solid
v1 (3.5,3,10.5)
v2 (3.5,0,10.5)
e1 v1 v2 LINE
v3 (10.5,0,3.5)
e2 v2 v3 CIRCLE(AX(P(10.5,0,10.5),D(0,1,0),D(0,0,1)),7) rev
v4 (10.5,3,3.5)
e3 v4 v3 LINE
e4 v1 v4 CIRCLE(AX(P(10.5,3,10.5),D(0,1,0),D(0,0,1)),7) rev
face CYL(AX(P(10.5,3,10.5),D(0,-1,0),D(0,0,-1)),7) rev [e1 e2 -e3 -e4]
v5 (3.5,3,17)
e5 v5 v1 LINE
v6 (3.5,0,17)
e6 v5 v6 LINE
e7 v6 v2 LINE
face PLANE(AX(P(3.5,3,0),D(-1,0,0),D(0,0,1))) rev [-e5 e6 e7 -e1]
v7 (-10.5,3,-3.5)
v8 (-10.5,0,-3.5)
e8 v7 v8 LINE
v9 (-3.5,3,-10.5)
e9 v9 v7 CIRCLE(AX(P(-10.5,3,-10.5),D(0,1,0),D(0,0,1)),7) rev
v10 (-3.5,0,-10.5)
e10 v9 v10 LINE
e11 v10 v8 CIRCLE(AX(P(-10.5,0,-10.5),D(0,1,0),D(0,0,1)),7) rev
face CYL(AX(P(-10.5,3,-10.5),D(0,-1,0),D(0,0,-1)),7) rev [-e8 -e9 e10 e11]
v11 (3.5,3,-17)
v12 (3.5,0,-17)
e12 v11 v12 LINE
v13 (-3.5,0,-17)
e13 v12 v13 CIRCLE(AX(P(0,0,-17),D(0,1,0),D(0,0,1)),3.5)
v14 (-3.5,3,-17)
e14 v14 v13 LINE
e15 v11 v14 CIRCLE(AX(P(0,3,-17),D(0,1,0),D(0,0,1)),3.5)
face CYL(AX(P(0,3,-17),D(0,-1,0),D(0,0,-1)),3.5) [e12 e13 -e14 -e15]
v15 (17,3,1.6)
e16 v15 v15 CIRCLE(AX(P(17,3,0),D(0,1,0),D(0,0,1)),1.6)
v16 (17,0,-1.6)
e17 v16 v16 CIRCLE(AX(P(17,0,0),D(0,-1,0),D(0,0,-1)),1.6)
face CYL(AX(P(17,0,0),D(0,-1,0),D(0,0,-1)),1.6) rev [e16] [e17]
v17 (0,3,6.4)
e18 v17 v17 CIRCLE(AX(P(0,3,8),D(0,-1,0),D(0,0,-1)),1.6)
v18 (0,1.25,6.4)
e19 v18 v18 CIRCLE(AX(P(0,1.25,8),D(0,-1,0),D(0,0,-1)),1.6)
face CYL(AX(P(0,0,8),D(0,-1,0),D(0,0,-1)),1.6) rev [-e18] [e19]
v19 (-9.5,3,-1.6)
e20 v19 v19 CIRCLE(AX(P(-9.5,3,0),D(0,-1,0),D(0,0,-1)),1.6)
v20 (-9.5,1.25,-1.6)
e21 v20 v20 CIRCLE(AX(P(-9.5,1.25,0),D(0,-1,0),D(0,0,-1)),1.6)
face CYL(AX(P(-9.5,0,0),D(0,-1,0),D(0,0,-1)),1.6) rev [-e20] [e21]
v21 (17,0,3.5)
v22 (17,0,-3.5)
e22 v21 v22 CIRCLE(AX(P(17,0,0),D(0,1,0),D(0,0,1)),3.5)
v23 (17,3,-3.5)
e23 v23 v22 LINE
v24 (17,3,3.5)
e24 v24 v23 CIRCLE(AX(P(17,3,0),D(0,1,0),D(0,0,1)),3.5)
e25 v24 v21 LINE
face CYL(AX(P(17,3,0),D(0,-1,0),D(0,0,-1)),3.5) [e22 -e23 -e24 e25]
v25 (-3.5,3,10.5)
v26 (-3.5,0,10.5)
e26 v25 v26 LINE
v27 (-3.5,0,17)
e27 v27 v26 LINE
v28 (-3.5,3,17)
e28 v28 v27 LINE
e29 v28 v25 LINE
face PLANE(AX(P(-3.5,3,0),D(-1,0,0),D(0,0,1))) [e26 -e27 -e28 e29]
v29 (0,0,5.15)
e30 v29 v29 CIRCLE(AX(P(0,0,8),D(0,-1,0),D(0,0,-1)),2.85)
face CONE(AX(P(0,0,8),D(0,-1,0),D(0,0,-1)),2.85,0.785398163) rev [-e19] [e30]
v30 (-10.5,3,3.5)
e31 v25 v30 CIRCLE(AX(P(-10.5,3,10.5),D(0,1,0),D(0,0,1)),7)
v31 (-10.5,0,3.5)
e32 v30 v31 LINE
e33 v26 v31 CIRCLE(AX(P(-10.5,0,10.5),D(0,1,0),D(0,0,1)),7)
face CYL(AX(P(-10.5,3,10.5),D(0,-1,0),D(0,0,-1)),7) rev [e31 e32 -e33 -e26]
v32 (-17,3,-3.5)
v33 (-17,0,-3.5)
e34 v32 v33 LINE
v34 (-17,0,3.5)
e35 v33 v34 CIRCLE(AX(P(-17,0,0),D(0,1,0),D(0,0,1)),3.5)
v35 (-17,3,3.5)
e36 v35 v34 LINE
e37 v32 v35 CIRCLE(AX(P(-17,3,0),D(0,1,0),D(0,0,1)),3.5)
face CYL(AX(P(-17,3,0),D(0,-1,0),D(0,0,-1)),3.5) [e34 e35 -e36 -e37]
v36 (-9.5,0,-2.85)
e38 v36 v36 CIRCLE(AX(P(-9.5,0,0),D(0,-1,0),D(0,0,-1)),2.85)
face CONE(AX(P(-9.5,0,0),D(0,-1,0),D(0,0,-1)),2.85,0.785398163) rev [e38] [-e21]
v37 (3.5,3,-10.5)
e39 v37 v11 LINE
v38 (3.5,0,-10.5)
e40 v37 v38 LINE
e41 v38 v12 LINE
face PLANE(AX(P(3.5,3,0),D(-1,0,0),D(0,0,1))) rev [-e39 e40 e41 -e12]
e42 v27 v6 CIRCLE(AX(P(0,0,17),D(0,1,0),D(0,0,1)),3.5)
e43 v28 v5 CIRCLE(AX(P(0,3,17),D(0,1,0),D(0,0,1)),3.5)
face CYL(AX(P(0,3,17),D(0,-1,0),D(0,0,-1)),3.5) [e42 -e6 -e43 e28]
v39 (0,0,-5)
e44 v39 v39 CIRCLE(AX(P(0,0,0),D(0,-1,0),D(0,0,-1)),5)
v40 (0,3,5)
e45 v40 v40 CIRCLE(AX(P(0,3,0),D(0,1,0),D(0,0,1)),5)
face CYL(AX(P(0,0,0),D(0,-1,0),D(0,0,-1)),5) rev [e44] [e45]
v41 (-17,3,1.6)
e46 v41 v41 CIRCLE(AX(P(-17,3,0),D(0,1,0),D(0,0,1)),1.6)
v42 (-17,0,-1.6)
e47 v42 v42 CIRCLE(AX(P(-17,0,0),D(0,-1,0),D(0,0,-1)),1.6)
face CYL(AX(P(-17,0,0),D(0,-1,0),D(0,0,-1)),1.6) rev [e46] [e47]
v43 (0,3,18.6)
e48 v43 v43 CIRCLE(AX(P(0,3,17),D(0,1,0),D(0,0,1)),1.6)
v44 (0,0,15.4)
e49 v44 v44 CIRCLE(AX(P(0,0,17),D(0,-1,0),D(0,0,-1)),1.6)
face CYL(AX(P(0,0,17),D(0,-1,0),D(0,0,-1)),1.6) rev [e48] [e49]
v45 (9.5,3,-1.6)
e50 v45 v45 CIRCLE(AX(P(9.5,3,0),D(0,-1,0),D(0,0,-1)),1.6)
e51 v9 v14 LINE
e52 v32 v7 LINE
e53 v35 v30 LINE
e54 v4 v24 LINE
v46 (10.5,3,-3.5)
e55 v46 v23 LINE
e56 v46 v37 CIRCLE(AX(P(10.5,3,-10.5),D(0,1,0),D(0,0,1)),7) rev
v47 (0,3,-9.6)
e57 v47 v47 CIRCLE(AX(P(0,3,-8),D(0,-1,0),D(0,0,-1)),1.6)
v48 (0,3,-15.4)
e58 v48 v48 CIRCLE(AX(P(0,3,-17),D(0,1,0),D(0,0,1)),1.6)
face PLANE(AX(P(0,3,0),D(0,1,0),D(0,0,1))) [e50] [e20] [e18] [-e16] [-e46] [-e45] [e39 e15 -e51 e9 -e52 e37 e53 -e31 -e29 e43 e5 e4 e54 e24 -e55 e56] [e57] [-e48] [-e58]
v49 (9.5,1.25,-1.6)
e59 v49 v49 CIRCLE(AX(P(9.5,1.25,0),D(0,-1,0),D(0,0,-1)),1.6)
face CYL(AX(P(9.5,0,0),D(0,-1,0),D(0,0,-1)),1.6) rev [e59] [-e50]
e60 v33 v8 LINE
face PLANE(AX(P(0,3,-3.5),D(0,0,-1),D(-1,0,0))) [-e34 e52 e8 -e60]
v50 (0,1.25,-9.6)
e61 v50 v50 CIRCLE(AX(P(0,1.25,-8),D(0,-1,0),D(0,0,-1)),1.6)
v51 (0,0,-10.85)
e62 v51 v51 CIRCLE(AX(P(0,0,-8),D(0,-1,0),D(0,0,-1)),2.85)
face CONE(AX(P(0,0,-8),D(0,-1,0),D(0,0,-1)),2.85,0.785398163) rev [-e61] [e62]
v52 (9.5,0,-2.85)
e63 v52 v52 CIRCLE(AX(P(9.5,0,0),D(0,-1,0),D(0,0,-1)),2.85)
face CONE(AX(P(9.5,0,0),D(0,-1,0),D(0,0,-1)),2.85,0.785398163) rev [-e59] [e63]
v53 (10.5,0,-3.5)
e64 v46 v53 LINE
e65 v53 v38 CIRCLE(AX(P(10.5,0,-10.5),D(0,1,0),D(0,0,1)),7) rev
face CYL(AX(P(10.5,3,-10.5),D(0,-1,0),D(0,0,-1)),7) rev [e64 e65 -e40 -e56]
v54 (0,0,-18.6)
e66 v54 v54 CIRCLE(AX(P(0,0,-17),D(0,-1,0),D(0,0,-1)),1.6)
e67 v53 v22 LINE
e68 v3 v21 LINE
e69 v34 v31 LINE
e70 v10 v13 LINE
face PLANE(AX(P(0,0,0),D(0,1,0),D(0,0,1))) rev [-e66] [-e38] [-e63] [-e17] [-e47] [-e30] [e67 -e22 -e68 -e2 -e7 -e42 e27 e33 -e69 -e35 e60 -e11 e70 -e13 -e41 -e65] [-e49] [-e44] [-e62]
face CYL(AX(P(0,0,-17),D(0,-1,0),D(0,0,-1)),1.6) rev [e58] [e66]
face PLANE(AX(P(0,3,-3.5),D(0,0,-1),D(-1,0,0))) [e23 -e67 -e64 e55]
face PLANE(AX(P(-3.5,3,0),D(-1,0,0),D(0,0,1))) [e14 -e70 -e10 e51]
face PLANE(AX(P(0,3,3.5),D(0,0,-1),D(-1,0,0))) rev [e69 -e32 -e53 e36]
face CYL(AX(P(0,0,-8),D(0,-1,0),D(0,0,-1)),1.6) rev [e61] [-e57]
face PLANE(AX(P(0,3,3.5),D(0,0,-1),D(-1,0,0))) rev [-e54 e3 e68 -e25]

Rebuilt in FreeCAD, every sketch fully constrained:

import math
import FreeCAD as App
import Part
import Sketcher
Q = App.Units.Quantity


def add_polygon(sketch, points):
    """Adds a closed chain of lines whose ends are joined by coincident constraints."""
    first, n = sketch.GeometryCount, len(points)
    for a, b in zip(points, points[1:] + points[:1]):
        sketch.addGeometry(Part.LineSegment(App.Vector(*a, 0), App.Vector(*b, 0)), False)
    for i in range(n):
        sketch.addConstraint(Sketcher.Constraint("Coincident", first + i, 2, first + (i + 1) % n, 1))

doc = App.newDocument("Part")
body = doc.addObject("PartDesign::Body", "Body")

# Sketch on XZ plane
sketch1 = doc.addObject("Sketcher::SketchObject", "Sketch")
body.addObject(sketch1)
sketch1.AttachmentSupport = (doc.XZ_Plane, [""])
sketch1.MapMode = "FlatFace"
sketch1.addGeometry([
    Part.ArcOfCircle(Part.Circle(App.Vector(0, 17, 0), App.Vector(0, 0, 1), 3.5), math.radians(0), math.radians(180)),  # 0
    Part.LineSegment(App.Vector(3.5, 17, 0), App.Vector(3.5, 10.5, 0)),  # 1
    Part.ArcOfCircle(Part.Circle(App.Vector(10.5, 10.5, 0), App.Vector(0, 0, 1), 7), math.radians(-180), math.radians(-90)),  # 2
    Part.LineSegment(App.Vector(10.5, 3.5, 0), App.Vector(17, 3.5, 0)),  # 3
    Part.ArcOfCircle(Part.Circle(App.Vector(17, 0, 0), App.Vector(0, 0, 1), 3.5), math.radians(-90), math.radians(90)),  # 4
    Part.LineSegment(App.Vector(17, -3.5, 0), App.Vector(10.5, -3.5, 0)),  # 5
    Part.ArcOfCircle(Part.Circle(App.Vector(10.5, -10.5, 0), App.Vector(0, 0, 1), 7), math.radians(90), math.radians(180)),  # 6
    Part.LineSegment(App.Vector(3.5, -10.5, 0), App.Vector(3.5, -17, 0)),  # 7
    Part.ArcOfCircle(Part.Circle(App.Vector(0, -17, 0), App.Vector(0, 0, 1), 3.5), math.radians(180), math.radians(360)),  # 8
    Part.LineSegment(App.Vector(-3.5, -17, 0), App.Vector(-3.5, -10.5, 0)),  # 9
    Part.ArcOfCircle(Part.Circle(App.Vector(-10.5, -10.5, 0), App.Vector(0, 0, 1), 7), math.radians(0), math.radians(90)),  # 10
    Part.LineSegment(App.Vector(-10.5, -3.5, 0), App.Vector(-17, -3.5, 0)),  # 11
    Part.ArcOfCircle(Part.Circle(App.Vector(-17, 0, 0), App.Vector(0, 0, 1), 3.5), math.radians(90), math.radians(270)),  # 12
    Part.LineSegment(App.Vector(-17, 3.5, 0), App.Vector(-10.5, 3.5, 0)),  # 13
    Part.ArcOfCircle(Part.Circle(App.Vector(-10.5, 10.5, 0), App.Vector(0, 0, 1), 7), math.radians(-90), math.radians(0)),  # 14
    Part.LineSegment(App.Vector(-3.5, 10.5, 0), App.Vector(-3.5, 17, 0)),  # 15
], False)
sketch1.addConstraint([
    Sketcher.Constraint("Tangent", 0, 1, 1, 1),
    Sketcher.Constraint("Tangent", 1, 2, 2, 1),
    Sketcher.Constraint("Tangent", 2, 2, 3, 1),
    Sketcher.Constraint("Tangent", 3, 2, 4, 2),
    Sketcher.Constraint("Tangent", 4, 1, 5, 1),
    Sketcher.Constraint("Tangent", 5, 2, 6, 1),
    Sketcher.Constraint("Tangent", 6, 2, 7, 1),
    Sketcher.Constraint("Tangent", 7, 2, 8, 2),
    Sketcher.Constraint("Tangent", 8, 1, 9, 1),
    Sketcher.Constraint("Tangent", 9, 2, 10, 1),
    Sketcher.Constraint("Tangent", 10, 2, 11, 1),
    Sketcher.Constraint("Tangent", 11, 2, 12, 2),
    Sketcher.Constraint("Tangent", 12, 1, 13, 1),
    Sketcher.Constraint("Tangent", 13, 2, 14, 1),
    Sketcher.Constraint("Tangent", 14, 2, 15, 1),
    Sketcher.Constraint("Tangent", 15, 2, 0, 2),
    Sketcher.Constraint("Vertical", 1),
    Sketcher.Constraint("Horizontal", 3),
    Sketcher.Constraint("Horizontal", 5),
    Sketcher.Constraint("Vertical", 7),
    Sketcher.Constraint("Vertical", 9),
    Sketcher.Constraint("Horizontal", 11),
    Sketcher.Constraint("Horizontal", 13),
    Sketcher.Constraint("Vertical", 15),
    Sketcher.Constraint("Equal", 0, 4),
    Sketcher.Constraint("Equal", 2, 6),
    Sketcher.Constraint("Equal", 4, 8),
    Sketcher.Constraint("Equal", 6, 10),
    Sketcher.Constraint("Equal", 8, 12),
    Sketcher.Constraint("Equal", 10, 14),
    Sketcher.Constraint("Symmetric", 0, 3, 8, 3, -1, 1),
    Sketcher.Constraint("Symmetric", 4, 3, 12, 3, -1, 1),
    Sketcher.Constraint("Symmetric", 6, 3, 10, 3, -2),
    Sketcher.Constraint("Equal", 13, 1),
    Sketcher.Constraint("Radius", 2, Q("7 mm")),
    Sketcher.Constraint("Radius", 0, Q("3.5 mm")),
    Sketcher.Constraint("DistanceX", 3, 1, 3, 2, Q("6.5 mm")),
])
pad1 = doc.addObject("PartDesign::Pad", "Pad")
body.addObject(pad1)
pad1.Profile = sketch1
pad1.Length = 3
pad1.Reversed = True

# Sketch on XZ plane
sketch2 = doc.addObject("Sketcher::SketchObject", "Sketch001")
body.addObject(sketch2)
sketch2.AttachmentSupport = (doc.XZ_Plane, [""])
sketch2.MapMode = "FlatFace"
sketch2.addGeometry(Part.Circle(App.Vector(0, 0, 0), App.Vector(0, 0, 1), 5), False)
sketch2.addConstraint([
    Sketcher.Constraint("Coincident", 0, 3, -1, 1),
    Sketcher.Constraint("Diameter", 0, Q("10 mm")),
])
doc.recompute()
hole = doc.addObject("PartDesign::Hole", "Hole")
body.addObject(hole)
hole.Profile = sketch2
hole.ThreadType = "None"
hole.Diameter = 10
hole.DepthType = "Dimension"
hole.Depth = 10
hole.DrillPoint = "Angled"
hole.DrillPointAngle = 118

# Sketch on YZ plane
sketch3 = doc.addObject("Sketcher::SketchObject", "Sketch002")
body.addObject(sketch3)
sketch3.AttachmentSupport = (doc.YZ_Plane, [""])
sketch3.MapMode = "FlatFace"
add_polygon(sketch3, [(10.961377, 17), (0, 17), (0, 15.4), (10, 15.4)])  # lines 0-3
sketch3.addGeometry(Part.LineSegment(App.Vector(0, 17, 0), App.Vector(10.961377, 17, 0)), True)  # axis
sketch3.addConstraint([
    Sketcher.Constraint("Horizontal", 0),
    Sketcher.Constraint("Vertical", 1),
    Sketcher.Constraint("Horizontal", 2),
    Sketcher.Constraint("Horizontal", 4),
    Sketcher.Constraint("Coincident", 4, 1, 0, 2),
    Sketcher.Constraint("PointOnObject", 0, 2, -2),
    Sketcher.Constraint("Equal", 0, 4),
    Sketcher.Constraint("DistanceX", 2, 1, 2, 2, Q("10 mm")),
    Sketcher.Constraint("Angle", 3, Q("59 deg")),
    Sketcher.Constraint("DistanceY", 1, 2, 1, 1, Q("1.6 mm")),
    Sketcher.Constraint("DistanceY", -1, 1, 0, 2, Q("17 mm")),
])
groove = doc.addObject("PartDesign::Groove", "Groove")
body.addObject(groove)
groove.Profile = sketch3
groove.ReferenceAxis = (sketch3, ["Axis0"])
groove.Angle = 360
doc.recompute()

polarpattern = doc.addObject("PartDesign::PolarPattern", "PolarPattern")
body.addObject(polarpattern)
polarpattern.Originals = [groove]
polarpattern.Axis = (doc.Y_Axis, [""])
polarpattern.Angle = 360
polarpattern.Occurrences = 4
body.Tip = polarpattern

# Sketch on XZ plane
sketch4 = doc.addObject("Sketcher::SketchObject", "Sketch003")
body.addObject(sketch4)
sketch4.AttachmentSupport = (doc.XZ_Plane, [""])
sketch4.MapMode = "FlatFace"
sketch4.addGeometry([
    Part.Circle(App.Vector(0, -8, 0), App.Vector(0, 0, 1), 1.6),
    Part.Circle(App.Vector(0, 8, 0), App.Vector(0, 0, 1), 1.6),
    Part.Circle(App.Vector(-9.5, 0, 0), App.Vector(0, 0, 1), 1.6),
    Part.Circle(App.Vector(9.5, 0, 0), App.Vector(0, 0, 1), 1.6),
], False)
sketch4.addConstraint([
    Sketcher.Constraint("Equal", 0, 1),
    Sketcher.Constraint("Equal", 1, 2),
    Sketcher.Constraint("Equal", 2, 3),
    Sketcher.Constraint("Symmetric", 0, 3, 1, 3, -1, 1),
    Sketcher.Constraint("Symmetric", 2, 3, 3, 3, -1, 1),
    Sketcher.Constraint("PointOnObject", 0, 3, -2),
    Sketcher.Constraint("PointOnObject", 2, 3, -1),
    Sketcher.Constraint("Diameter", 0, Q("3.2 mm")),
    Sketcher.Constraint("DistanceY", 0, 3, -1, 1, Q("8 mm")),
    Sketcher.Constraint("DistanceX", 2, 3, 3, 3, Q("19 mm")),
])
doc.recompute()
hole2 = doc.addObject("PartDesign::Hole", "Hole001")
body.addObject(hole2)
hole2.Profile = sketch4
hole2.ThreadType = "None"
hole2.Diameter = 3.2
hole2.DepthType = "ThroughAll"
hole2.HoleCutType = "Countersink"
hole2.HoleCutDiameter = 5.7
hole2.HoleCutCountersinkAngle = 90

doc.recompute()
